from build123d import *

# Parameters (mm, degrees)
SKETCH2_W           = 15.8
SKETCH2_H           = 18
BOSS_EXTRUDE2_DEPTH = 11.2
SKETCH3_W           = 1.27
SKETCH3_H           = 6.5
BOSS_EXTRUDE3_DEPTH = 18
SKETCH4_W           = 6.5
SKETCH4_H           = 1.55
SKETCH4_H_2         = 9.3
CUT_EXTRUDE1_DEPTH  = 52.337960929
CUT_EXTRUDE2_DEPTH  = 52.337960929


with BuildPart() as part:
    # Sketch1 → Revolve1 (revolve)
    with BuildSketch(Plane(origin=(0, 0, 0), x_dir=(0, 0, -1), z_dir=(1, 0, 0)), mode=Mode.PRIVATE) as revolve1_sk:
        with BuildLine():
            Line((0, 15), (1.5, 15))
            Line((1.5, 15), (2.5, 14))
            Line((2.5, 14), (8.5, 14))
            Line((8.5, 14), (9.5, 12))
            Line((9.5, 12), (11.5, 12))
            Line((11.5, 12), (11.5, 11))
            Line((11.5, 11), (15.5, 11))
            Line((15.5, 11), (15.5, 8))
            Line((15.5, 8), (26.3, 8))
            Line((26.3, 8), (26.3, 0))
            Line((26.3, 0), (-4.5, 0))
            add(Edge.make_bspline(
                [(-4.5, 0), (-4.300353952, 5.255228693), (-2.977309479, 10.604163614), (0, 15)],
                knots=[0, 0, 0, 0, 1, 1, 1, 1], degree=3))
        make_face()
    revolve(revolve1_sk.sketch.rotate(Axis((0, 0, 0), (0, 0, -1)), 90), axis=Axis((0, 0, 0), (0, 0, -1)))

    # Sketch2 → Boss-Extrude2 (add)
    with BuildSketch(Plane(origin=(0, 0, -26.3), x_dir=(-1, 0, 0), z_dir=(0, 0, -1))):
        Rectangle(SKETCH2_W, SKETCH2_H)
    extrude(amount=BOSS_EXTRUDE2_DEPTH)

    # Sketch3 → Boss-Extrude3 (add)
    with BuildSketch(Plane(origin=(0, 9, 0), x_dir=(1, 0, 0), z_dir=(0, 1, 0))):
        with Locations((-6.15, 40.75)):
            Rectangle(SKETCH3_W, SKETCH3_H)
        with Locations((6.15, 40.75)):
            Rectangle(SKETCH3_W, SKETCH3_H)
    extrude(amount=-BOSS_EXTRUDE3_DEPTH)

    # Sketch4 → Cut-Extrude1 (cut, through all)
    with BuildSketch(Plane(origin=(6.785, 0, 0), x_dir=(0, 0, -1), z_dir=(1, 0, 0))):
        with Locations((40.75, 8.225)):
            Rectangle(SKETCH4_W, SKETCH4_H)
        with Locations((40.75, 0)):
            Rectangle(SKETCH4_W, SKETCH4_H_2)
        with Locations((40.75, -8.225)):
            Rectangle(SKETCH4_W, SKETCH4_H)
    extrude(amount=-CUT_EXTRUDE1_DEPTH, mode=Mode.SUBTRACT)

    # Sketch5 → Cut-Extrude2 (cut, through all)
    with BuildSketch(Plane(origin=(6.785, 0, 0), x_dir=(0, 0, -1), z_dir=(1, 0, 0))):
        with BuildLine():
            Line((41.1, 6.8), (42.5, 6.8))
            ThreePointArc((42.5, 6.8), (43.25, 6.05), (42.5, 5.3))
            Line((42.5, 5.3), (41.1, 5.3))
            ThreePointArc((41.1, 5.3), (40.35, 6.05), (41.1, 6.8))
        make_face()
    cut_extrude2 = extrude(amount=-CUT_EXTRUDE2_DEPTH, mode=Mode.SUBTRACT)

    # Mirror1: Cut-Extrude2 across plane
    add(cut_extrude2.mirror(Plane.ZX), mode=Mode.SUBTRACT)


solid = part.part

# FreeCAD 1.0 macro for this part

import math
import FreeCAD as App
import Part
import Sketcher
Q = App.Units.Quantity

doc = App.newDocument("Part")
body = doc.addObject("PartDesign::Body", "Body")

sketch1 = body.newObject("Sketcher::SketchObject", "Sketch")
sketch1.AttachmentSupport = (doc.getObject("YZ_Plane"), [""])
sketch1.MapMode = "FlatFace"
sketch1.addGeometry(Part.LineSegment(App.Vector(15, -1.5, 0), App.Vector(15, 0, 0)), False)
sketch1.addGeometry(Part.BSplineCurve([App.Vector(0, 4.5, 0), App.Vector(5.255229, 4.300354, 0), App.Vector(10.604164, 2.977309, 0), App.Vector(15, 0, 0)], [4, 4], [0, 1], False, 3, [1, 1, 1, 1], False), False)
sketch1.addGeometry(Part.LineSegment(App.Vector(0, 4.5, 0), App.Vector(0, -26.3, 0)), False)
sketch1.addGeometry(Part.LineSegment(App.Vector(0, -26.3, 0), App.Vector(8, -26.3, 0)), False)
sketch1.addGeometry(Part.LineSegment(App.Vector(8, -26.3, 0), App.Vector(8, -15.5, 0)), False)
sketch1.addGeometry(Part.LineSegment(App.Vector(8, -15.5, 0), App.Vector(11, -15.5, 0)), False)
sketch1.addGeometry(Part.LineSegment(App.Vector(11, -15.5, 0), App.Vector(11, -11.5, 0)), False)
sketch1.addGeometry(Part.LineSegment(App.Vector(11, -11.5, 0), App.Vector(12, -11.5, 0)), False)
sketch1.addGeometry(Part.LineSegment(App.Vector(12, -11.5, 0), App.Vector(12, -9.5, 0)), False)
sketch1.addGeometry(Part.LineSegment(App.Vector(12, -9.5, 0), App.Vector(14, -8.5, 0)), False)
sketch1.addGeometry(Part.LineSegment(App.Vector(14, -8.5, 0), App.Vector(14, -2.5, 0)), False)
sketch1.addGeometry(Part.LineSegment(App.Vector(14, -2.5, 0), App.Vector(15, -1.5, 0)), False)
sketch1.addConstraint(Sketcher.Constraint("Block", 1))
sketch1.addConstraint(Sketcher.Constraint("Coincident", 0, 2, 1, 2))
sketch1.addConstraint(Sketcher.Constraint("Coincident", 1, 1, 2, 1))
sketch1.addConstraint(Sketcher.Constraint("Coincident", 2, 2, 3, 1))
sketch1.addConstraint(Sketcher.Constraint("Coincident", 3, 2, 4, 1))
sketch1.addConstraint(Sketcher.Constraint("Coincident", 4, 2, 5, 1))
sketch1.addConstraint(Sketcher.Constraint("Coincident", 5, 2, 6, 1))
sketch1.addConstraint(Sketcher.Constraint("Coincident", 6, 2, 7, 1))
sketch1.addConstraint(Sketcher.Constraint("Coincident", 7, 2, 8, 1))
sketch1.addConstraint(Sketcher.Constraint("Coincident", 8, 2, 9, 1))
sketch1.addConstraint(Sketcher.Constraint("Coincident", 9, 2, 10, 1))
sketch1.addConstraint(Sketcher.Constraint("Coincident", 10, 2, 11, 1))
sketch1.addConstraint(Sketcher.Constraint("Coincident", 11, 2, 0, 1))
sketch1.addConstraint(Sketcher.Constraint("Vertical", 0))
sketch1.addConstraint(Sketcher.Constraint("Vertical", 2))
sketch1.addConstraint(Sketcher.Constraint("Horizontal", 3))
sketch1.addConstraint(Sketcher.Constraint("Vertical", 4))
sketch1.addConstraint(Sketcher.Constraint("Horizontal", 5))
sketch1.addConstraint(Sketcher.Constraint("Vertical", 6))
sketch1.addConstraint(Sketcher.Constraint("Horizontal", 7))
sketch1.addConstraint(Sketcher.Constraint("Vertical", 8))
sketch1.addConstraint(Sketcher.Constraint("Vertical", 10))
sketch1.addConstraint(Sketcher.Constraint("DistanceX", 3, 1, 3, 2, 8.0))
sketch1.addConstraint(Sketcher.Constraint("DistanceX", 5, 1, 5, 2, 3.0))
sketch1.addConstraint(Sketcher.Constraint("DistanceX", 7, 1, 7, 2, 1.0))
sketch1.addConstraint(Sketcher.Constraint("DistanceY", 6, 1, 6, 2, 4.0))
sketch1.addConstraint(Sketcher.Constraint("DistanceY", 8, 1, 8, 2, 2.0))
sketch1.addConstraint(Sketcher.Constraint("DistanceY", 10, 1, 10, 2, 6.0))
sketch1.addConstraint(Sketcher.Constraint("Angle", 11, Q("45 deg")))
sketch1.addConstraint(Sketcher.Constraint("DistanceY", 0, 1, 0, 2, 1.5))
sketch1.addConstraint(Sketcher.Constraint("DistanceY", 2, 2, 2, 1, 30.8))
sketch1.addConstraint(Sketcher.Constraint("DistanceY", 4, 1, 4, 2, 10.8))
sketch1.addConstraint(Sketcher.Constraint("DistanceX", -1, 1, 9, 2, 14.0))
revolution = body.newObject("PartDesign::Revolution", "Revolution")
revolution.Profile = sketch1
revolution.ReferenceAxis = (sketch1, ["V_Axis"])
revolution.Angle = 360

sketch2 = body.newObject("Sketcher::SketchObject", "Sketch001")
sketch2.AttachmentSupport = (doc.getObject("XY_Plane"), [""])
sketch2.MapMode = "FlatFace"
sketch2.AttachmentOffset = App.Placement(App.Vector(0, 0, -26.3), App.Rotation())
sketch2.addGeometry(Part.LineSegment(App.Vector(7.9, 9, 0), App.Vector(7.9, -9, 0)), False)
sketch2.addGeometry(Part.LineSegment(App.Vector(7.9, -9, 0), App.Vector(-7.9, -9, 0)), False)
sketch2.addGeometry(Part.LineSegment(App.Vector(-7.9, -9, 0), App.Vector(-7.9, 9, 0)), False)
sketch2.addGeometry(Part.LineSegment(App.Vector(-7.9, 9, 0), App.Vector(7.9, 9, 0)), False)
sketch2.addConstraint(Sketcher.Constraint("Coincident", 0, 2, 1, 1))
sketch2.addConstraint(Sketcher.Constraint("Coincident", 1, 2, 2, 1))
sketch2.addConstraint(Sketcher.Constraint("Coincident", 2, 2, 3, 1))
sketch2.addConstraint(Sketcher.Constraint("Coincident", 3, 2, 0, 1))
sketch2.addConstraint(Sketcher.Constraint("Vertical", 0))
sketch2.addConstraint(Sketcher.Constraint("Horizontal", 1))
sketch2.addConstraint(Sketcher.Constraint("Vertical", 2))
sketch2.addConstraint(Sketcher.Constraint("Horizontal", 3))
sketch2.addConstraint(Sketcher.Constraint("Symmetric", 0, 2, 2, 2, -1, 1))
sketch2.addConstraint(Sketcher.Constraint("DistanceY", 0, 2, 0, 1, 18.0))
sketch2.addConstraint(Sketcher.Constraint("DistanceX", 1, 2, 1, 1, 15.8))
pad1 = body.newObject("PartDesign::Pad", "Pad")
pad1.Profile = sketch2
pad1.Length = 11.2
pad1.Reversed = True

sketch3 = body.newObject("Sketcher::SketchObject", "Sketch002")
sketch3.AttachmentSupport = (doc.getObject("XZ_Plane"), [""])
sketch3.MapMode = "FlatFace"
sketch3.AttachmentOffset = App.Placement(App.Vector(0, 0, -9), App.Rotation())
sketch3.addGeometry(Part.LineSegment(App.Vector(-6.785, -44, 0), App.Vector(-6.785, -37.5, 0)), False)
sketch3.addGeometry(Part.LineSegment(App.Vector(-6.785, -37.5, 0), App.Vector(-5.515, -37.5, 0)), False)
sketch3.addGeometry(Part.LineSegment(App.Vector(-5.515, -37.5, 0), App.Vector(-5.515, -44, 0)), False)
sketch3.addGeometry(Part.LineSegment(App.Vector(-5.515, -44, 0), App.Vector(-6.785, -44, 0)), False)
sketch3.addGeometry(Part.LineSegment(App.Vector(5.515, -44, 0), App.Vector(5.515, -37.5, 0)), False)
sketch3.addGeometry(Part.LineSegment(App.Vector(5.515, -37.5, 0), App.Vector(6.785, -37.5, 0)), False)
sketch3.addGeometry(Part.LineSegment(App.Vector(6.785, -37.5, 0), App.Vector(6.785, -44, 0)), False)
sketch3.addGeometry(Part.LineSegment(App.Vector(6.785, -44, 0), App.Vector(5.515, -44, 0)), False)
sketch3.addConstraint(Sketcher.Constraint("Coincident", 0, 2, 1, 1))
sketch3.addConstraint(Sketcher.Constraint("Coincident", 1, 2, 2, 1))
sketch3.addConstraint(Sketcher.Constraint("Coincident", 2, 2, 3, 1))
sketch3.addConstraint(Sketcher.Constraint("Coincident", 3, 2, 0, 1))
sketch3.addConstraint(Sketcher.Constraint("Coincident", 4, 2, 5, 1))
sketch3.addConstraint(Sketcher.Constraint("Coincident", 5, 2, 6, 1))
sketch3.addConstraint(Sketcher.Constraint("Coincident", 6, 2, 7, 1))
sketch3.addConstraint(Sketcher.Constraint("Coincident", 7, 2, 4, 1))
sketch3.addConstraint(Sketcher.Constraint("Vertical", 0))
sketch3.addConstraint(Sketcher.Constraint("Horizontal", 1))
sketch3.addConstraint(Sketcher.Constraint("Vertical", 2))
sketch3.addConstraint(Sketcher.Constraint("Horizontal", 3))
sketch3.addConstraint(Sketcher.Constraint("Vertical", 4))
sketch3.addConstraint(Sketcher.Constraint("Horizontal", 5))
sketch3.addConstraint(Sketcher.Constraint("Vertical", 6))
sketch3.addConstraint(Sketcher.Constraint("Horizontal", 7))
sketch3.addConstraint(Sketcher.Constraint("Symmetric", 1, 2, 4, 2, -2))
sketch3.addConstraint(Sketcher.Constraint("Symmetric", 3, 2, 6, 2, -2))
sketch3.addConstraint(Sketcher.Constraint("DistanceY", 0, 1, 0, 2, 6.5))
sketch3.addConstraint(Sketcher.Constraint("DistanceY", 2, 2, -1, 1, 44.0))
sketch3.addConstraint(Sketcher.Constraint("DistanceX", 1, 1, 1, 2, 1.27))
sketch3.addConstraint(Sketcher.Constraint("DistanceX", 0, 2, 4, 2, 12.3))
pad2 = body.newObject("PartDesign::Pad", "Pad001")
pad2.Profile = sketch3
pad2.Length = 18

sketch4 = body.newObject("Sketcher::SketchObject", "Sketch003")
sketch4.AttachmentSupport = (doc.getObject("YZ_Plane"), [""])
sketch4.MapMode = "FlatFace"
sketch4.AttachmentOffset = App.Placement(App.Vector(0, 0, 6.785), App.Rotation())
sketch4.addGeometry(Part.LineSegment(App.Vector(9, -37.5, 0), App.Vector(7.45, -37.5, 0)), False)
sketch4.addGeometry(Part.LineSegment(App.Vector(7.45, -37.5, 0), App.Vector(7.45, -44, 0)), False)
sketch4.addGeometry(Part.LineSegment(App.Vector(7.45, -44, 0), App.Vector(9, -44, 0)), False)
sketch4.addGeometry(Part.LineSegment(App.Vector(9, -44, 0), App.Vector(9, -37.5, 0)), False)
sketch4.addGeometry(Part.LineSegment(App.Vector(4.65, -37.5, 0), App.Vector(-4.65, -37.5, 0)), False)
sketch4.addGeometry(Part.LineSegment(App.Vector(-4.65, -37.5, 0), App.Vector(-4.65, -44, 0)), False)
sketch4.addGeometry(Part.LineSegment(App.Vector(-4.65, -44, 0), App.Vector(4.65, -44, 0)), False)
sketch4.addGeometry(Part.LineSegment(App.Vector(4.65, -44, 0), App.Vector(4.65, -37.5, 0)), False)
sketch4.addGeometry(Part.LineSegment(App.Vector(-7.45, -37.5, 0), App.Vector(-9, -37.5, 0)), False)
sketch4.addGeometry(Part.LineSegment(App.Vector(-9, -37.5, 0), App.Vector(-9, -44, 0)), False)
sketch4.addGeometry(Part.LineSegment(App.Vector(-9, -44, 0), App.Vector(-7.45, -44, 0)), False)
sketch4.addGeometry(Part.LineSegment(App.Vector(-7.45, -44, 0), App.Vector(-7.45, -37.5, 0)), False)
sketch4.addConstraint(Sketcher.Constraint("Coincident", 0, 2, 1, 1))
sketch4.addConstraint(Sketcher.Constraint("Coincident", 1, 2, 2, 1))
sketch4.addConstraint(Sketcher.Constraint("Coincident", 2, 2, 3, 1))
sketch4.addConstraint(Sketcher.Constraint("Coincident", 3, 2, 0, 1))
sketch4.addConstraint(Sketcher.Constraint("Coincident", 4, 2, 5, 1))
sketch4.addConstraint(Sketcher.Constraint("Coincident", 5, 2, 6, 1))
sketch4.addConstraint(Sketcher.Constraint("Coincident", 6, 2, 7, 1))
sketch4.addConstraint(Sketcher.Constraint("Coincident", 7, 2, 4, 1))
sketch4.addConstraint(Sketcher.Constraint("Coincident", 8, 2, 9, 1))
sketch4.addConstraint(Sketcher.Constraint("Coincident", 9, 2, 10, 1))
sketch4.addConstraint(Sketcher.Constraint("Coincident", 10, 2, 11, 1))
sketch4.addConstraint(Sketcher.Constraint("Coincident", 11, 2, 8, 1))
sketch4.addConstraint(Sketcher.Constraint("Horizontal", 0))
sketch4.addConstraint(Sketcher.Constraint("Vertical", 1))
sketch4.addConstraint(Sketcher.Constraint("Horizontal", 2))
sketch4.addConstraint(Sketcher.Constraint("Vertical", 3))
sketch4.addConstraint(Sketcher.Constraint("Horizontal", 4))
sketch4.addConstraint(Sketcher.Constraint("Vertical", 5))
sketch4.addConstraint(Sketcher.Constraint("Horizontal", 6))
sketch4.addConstraint(Sketcher.Constraint("Vertical", 7))
sketch4.addConstraint(Sketcher.Constraint("Horizontal", 8))
sketch4.addConstraint(Sketcher.Constraint("Vertical", 9))
sketch4.addConstraint(Sketcher.Constraint("Horizontal", 10))
sketch4.addConstraint(Sketcher.Constraint("Vertical", 11))
sketch4.addConstraint(Sketcher.Constraint("Symmetric", 3, 2, 8, 2, -2))
sketch4.addConstraint(Sketcher.Constraint("Symmetric", 1, 2, 10, 2, -2))
sketch4.addConstraint(Sketcher.Constraint("Horizontal", 3, 2, 4, 2))
sketch4.addConstraint(Sketcher.Constraint("Horizontal", 2, 2, 5, 2))
sketch4.addConstraint(Sketcher.Constraint("DistanceX", 4, 2, 4, 1, 9.3))
sketch4.addConstraint(Sketcher.Constraint("DistanceY", 1, 2, 1, 1, 6.5))
sketch4.addConstraint(Sketcher.Constraint("DistanceY", 1, 2, -1, 1, 44.0))
sketch4.addConstraint(Sketcher.Constraint("DistanceX", -1, 1, 2, 2, 9.0))
sketch4.addConstraint(Sketcher.Constraint("DistanceX", 0, 2, 0, 1, 1.55))
sketch4.addConstraint(Sketcher.Constraint("DistanceX", 4, 2, 0, 2, 12.1))
pocket1 = body.newObject("PartDesign::Pocket", "Pocket")
pocket1.Profile = sketch4
pocket1.Type = "ThroughAll"

sketch5 = body.newObject("Sketcher::SketchObject", "Sketch004")
sketch5.AttachmentSupport = (doc.getObject("YZ_Plane"), [""])
sketch5.MapMode = "FlatFace"
sketch5.AttachmentOffset = App.Placement(App.Vector(0, 0, 6.785), App.Rotation())
sketch5.addGeometry(Part.LineSegment(App.Vector(6.8, -42.5, 0), App.Vector(6.8, -41.1, 0)), False)
sketch5.addGeometry(Part.ArcOfCircle(Part.Circle(App.Vector(6.05, -41.1, 0), App.Vector(0, 0, 1), 0.75), math.radians(0), math.radians(180)), False)
sketch5.addGeometry(Part.LineSegment(App.Vector(5.3, -41.1, 0), App.Vector(5.3, -42.5, 0)), False)
sketch5.addGeometry(Part.ArcOfCircle(Part.Circle(App.Vector(6.05, -42.5, 0), App.Vector(0, 0, 1), 0.75), math.radians(180), math.radians(360)), False)
sketch5.addConstraint(Sketcher.Constraint("Tangent", 0, 2, 1, 1))
sketch5.addConstraint(Sketcher.Constraint("Tangent", 1, 2, 2, 1))
sketch5.addConstraint(Sketcher.Constraint("Tangent", 2, 2, 3, 1))
sketch5.addConstraint(Sketcher.Constraint("Tangent", 3, 2, 0, 1))
sketch5.addConstraint(Sketcher.Constraint("Vertical", 0))
sketch5.addConstraint(Sketcher.Constraint("Vertical", 2))
sketch5.addConstraint(Sketcher.Constraint("Radius", 1, 0.75))
sketch5.addConstraint(Sketcher.Constraint("DistanceY", 0, 1, 0, 2, 1.4))
sketch5.addConstraint(Sketcher.Constraint("DistanceY", 1, 3, -1, 1, 41.1))
sketch5.addConstraint(Sketcher.Constraint("DistanceX", -1, 1, 0, 2, 6.8))
pocket2 = body.newObject("PartDesign::Pocket", "Pocket001")
pocket2.Profile = sketch5
pocket2.Type = "ThroughAll"
doc.recompute()

mirrored = body.newObject("PartDesign::Mirrored", "Mirrored")
mirrored.Originals = [pocket2]
mirrored.MirrorPlane = (doc.getObject("XZ_Plane"), [""])
body.Tip = mirrored

doc.recompute()
